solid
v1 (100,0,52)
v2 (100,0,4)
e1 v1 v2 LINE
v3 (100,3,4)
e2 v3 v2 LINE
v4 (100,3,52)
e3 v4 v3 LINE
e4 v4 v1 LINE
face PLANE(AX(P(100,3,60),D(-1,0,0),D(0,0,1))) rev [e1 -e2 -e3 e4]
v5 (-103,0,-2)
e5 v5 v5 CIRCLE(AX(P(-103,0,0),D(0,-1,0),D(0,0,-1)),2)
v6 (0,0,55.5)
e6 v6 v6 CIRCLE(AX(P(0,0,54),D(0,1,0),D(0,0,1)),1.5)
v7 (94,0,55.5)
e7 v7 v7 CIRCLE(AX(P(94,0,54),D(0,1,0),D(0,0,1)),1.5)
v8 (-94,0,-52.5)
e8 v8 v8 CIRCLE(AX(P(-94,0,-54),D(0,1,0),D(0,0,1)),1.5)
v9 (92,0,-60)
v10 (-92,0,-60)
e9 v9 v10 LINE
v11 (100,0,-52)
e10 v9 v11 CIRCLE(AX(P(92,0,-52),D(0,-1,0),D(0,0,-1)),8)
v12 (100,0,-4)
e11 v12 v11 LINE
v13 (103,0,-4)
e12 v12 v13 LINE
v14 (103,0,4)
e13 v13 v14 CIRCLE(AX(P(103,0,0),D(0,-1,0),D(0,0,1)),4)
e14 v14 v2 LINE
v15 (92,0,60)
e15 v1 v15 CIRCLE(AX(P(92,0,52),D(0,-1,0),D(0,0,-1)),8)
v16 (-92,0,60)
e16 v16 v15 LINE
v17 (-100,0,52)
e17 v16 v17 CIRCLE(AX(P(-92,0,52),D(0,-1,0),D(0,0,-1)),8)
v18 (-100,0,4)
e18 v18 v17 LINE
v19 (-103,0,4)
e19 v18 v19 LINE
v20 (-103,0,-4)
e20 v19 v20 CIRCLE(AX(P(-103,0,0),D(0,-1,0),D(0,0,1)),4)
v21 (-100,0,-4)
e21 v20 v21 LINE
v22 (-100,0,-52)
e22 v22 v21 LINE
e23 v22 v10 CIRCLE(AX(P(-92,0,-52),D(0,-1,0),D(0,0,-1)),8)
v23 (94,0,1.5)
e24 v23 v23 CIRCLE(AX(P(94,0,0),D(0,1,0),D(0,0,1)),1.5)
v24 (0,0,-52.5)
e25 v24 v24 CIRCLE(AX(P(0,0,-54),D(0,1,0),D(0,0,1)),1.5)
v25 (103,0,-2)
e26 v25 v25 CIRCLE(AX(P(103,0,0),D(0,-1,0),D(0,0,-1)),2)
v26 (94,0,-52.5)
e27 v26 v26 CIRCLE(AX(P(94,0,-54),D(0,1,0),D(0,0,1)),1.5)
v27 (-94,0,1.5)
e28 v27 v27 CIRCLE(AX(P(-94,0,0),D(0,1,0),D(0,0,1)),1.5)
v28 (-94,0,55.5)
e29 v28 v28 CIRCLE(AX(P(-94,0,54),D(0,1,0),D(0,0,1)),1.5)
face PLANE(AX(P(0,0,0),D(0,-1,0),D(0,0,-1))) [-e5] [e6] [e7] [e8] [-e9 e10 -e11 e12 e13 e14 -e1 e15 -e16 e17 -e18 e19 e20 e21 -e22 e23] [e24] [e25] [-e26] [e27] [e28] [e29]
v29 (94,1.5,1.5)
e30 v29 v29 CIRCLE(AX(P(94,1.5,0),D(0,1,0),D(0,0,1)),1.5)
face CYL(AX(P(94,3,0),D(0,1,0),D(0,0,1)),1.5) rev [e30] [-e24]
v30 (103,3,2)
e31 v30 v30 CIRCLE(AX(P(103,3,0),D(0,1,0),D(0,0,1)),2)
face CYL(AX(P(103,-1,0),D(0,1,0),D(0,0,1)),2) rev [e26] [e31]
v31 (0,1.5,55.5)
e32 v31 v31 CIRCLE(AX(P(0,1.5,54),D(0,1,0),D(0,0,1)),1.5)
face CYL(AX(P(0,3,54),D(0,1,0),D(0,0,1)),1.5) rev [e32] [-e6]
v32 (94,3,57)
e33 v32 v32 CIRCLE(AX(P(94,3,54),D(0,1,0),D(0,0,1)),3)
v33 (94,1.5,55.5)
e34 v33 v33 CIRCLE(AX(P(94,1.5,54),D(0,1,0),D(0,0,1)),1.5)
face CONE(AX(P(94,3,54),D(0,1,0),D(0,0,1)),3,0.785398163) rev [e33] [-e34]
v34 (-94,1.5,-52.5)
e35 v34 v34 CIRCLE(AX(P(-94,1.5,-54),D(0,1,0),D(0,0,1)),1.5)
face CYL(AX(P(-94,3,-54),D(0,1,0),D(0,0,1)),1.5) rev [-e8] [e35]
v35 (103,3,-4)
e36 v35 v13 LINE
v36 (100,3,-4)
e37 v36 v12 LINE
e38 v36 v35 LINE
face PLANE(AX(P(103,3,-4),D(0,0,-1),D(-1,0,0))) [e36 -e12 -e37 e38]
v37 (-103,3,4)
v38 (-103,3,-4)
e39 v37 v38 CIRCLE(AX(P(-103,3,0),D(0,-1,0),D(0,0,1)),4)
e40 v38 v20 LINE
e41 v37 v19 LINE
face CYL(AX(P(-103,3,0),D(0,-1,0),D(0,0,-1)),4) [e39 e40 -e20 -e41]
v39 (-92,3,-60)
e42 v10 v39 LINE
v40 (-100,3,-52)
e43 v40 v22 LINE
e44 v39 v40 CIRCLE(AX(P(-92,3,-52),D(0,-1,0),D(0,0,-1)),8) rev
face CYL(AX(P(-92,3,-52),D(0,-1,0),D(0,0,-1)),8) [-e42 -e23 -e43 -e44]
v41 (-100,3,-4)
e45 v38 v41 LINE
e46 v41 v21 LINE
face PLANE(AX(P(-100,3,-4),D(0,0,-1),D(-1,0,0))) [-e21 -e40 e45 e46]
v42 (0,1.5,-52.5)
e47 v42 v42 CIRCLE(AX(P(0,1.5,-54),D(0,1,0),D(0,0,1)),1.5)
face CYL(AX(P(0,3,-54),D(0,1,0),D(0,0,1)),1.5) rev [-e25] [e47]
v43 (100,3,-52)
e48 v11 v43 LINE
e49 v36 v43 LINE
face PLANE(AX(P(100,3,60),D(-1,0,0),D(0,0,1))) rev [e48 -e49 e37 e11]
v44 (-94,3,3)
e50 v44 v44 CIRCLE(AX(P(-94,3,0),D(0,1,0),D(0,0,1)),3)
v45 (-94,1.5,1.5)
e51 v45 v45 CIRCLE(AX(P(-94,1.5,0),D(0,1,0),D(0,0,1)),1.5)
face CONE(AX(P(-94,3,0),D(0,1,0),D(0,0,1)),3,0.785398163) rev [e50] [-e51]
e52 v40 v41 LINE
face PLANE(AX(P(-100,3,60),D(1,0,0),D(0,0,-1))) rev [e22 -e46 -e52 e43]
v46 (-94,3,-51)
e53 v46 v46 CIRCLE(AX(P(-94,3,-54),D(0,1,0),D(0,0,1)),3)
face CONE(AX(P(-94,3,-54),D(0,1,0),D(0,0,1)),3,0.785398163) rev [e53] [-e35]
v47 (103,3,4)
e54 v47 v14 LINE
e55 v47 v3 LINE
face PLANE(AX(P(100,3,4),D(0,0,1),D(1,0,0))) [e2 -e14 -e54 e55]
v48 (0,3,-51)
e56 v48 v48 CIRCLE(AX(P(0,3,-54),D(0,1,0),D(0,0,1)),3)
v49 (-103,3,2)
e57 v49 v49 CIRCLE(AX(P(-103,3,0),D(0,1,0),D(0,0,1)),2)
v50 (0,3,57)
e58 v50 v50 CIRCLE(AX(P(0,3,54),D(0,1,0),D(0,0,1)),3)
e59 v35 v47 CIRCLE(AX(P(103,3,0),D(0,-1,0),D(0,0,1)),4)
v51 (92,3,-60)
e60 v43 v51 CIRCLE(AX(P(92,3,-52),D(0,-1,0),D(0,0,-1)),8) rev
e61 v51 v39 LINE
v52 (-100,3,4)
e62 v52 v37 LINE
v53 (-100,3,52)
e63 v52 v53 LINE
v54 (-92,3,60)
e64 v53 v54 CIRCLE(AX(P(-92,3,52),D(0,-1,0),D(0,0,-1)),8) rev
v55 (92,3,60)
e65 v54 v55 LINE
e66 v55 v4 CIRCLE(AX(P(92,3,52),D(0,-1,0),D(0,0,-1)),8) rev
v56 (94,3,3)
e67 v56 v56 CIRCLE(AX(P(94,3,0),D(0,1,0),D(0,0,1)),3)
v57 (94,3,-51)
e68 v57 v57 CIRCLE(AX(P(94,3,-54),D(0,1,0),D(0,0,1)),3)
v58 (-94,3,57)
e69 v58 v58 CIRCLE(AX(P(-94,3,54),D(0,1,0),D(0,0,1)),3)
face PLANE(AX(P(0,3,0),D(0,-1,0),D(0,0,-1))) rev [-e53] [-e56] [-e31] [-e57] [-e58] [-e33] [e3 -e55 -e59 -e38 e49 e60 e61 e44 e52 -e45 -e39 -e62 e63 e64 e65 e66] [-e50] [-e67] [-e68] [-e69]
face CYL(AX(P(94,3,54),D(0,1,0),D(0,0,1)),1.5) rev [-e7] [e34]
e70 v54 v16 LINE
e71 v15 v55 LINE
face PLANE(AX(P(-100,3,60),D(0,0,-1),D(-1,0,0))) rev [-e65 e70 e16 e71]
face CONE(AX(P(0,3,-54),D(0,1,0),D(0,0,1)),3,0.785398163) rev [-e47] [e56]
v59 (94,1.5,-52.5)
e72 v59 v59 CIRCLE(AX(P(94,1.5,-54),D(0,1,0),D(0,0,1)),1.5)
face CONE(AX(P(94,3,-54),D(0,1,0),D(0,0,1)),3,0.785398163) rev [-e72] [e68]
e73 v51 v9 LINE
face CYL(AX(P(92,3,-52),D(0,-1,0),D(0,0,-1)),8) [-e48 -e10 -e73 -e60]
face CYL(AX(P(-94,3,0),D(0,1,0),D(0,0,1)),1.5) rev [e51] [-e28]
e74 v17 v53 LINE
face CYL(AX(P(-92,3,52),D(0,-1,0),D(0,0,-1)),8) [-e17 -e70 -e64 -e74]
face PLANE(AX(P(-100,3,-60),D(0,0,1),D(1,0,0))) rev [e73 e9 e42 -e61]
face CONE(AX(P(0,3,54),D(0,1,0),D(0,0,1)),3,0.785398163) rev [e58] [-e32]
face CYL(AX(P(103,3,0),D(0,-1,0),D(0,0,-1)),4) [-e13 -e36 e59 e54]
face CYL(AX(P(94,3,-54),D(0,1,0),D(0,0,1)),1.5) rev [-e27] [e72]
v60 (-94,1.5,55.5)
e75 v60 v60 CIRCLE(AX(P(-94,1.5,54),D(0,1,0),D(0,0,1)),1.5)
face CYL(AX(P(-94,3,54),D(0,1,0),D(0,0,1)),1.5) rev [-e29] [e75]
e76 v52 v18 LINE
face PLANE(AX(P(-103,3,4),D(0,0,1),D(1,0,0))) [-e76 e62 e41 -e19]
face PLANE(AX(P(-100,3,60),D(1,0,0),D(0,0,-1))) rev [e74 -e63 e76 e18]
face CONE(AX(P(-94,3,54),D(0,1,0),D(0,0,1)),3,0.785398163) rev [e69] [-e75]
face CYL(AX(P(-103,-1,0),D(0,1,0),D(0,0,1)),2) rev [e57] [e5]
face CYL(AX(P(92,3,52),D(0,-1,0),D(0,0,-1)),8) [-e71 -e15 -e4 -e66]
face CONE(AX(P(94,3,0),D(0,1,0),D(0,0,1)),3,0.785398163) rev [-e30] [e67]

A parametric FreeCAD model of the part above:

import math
import FreeCAD as App
import Part
import Sketcher
Q = App.Units.Quantity


def edges_at(feature, points):
    """Names of the edges that pass closest to the given points."""
    edges = feature.Shape.Edges
    near = lambda p: min(range(len(edges)), key=lambda i: edges[i].distToShape(Part.Vertex(*p))[0])
    return sorted({f"Edge{near(p) + 1}" for p in points})

doc = App.newDocument("Part")
body = doc.addObject("PartDesign::Body", "Body")

# Sketch on XZ plane
sketch1 = doc.addObject("Sketcher::SketchObject", "Sketch")
body.addObject(sketch1)
sketch1.AttachmentSupport = (doc.XZ_Plane, [""])
sketch1.MapMode = "FlatFace"
sketch1.addGeometry([
    Part.LineSegment(App.Vector(-100, -60, 0), App.Vector(-100, 60, 0)),
    Part.LineSegment(App.Vector(-100, 60, 0), App.Vector(100, 60, 0)),
    Part.LineSegment(App.Vector(100, 60, 0), App.Vector(100, -60, 0)),
    Part.LineSegment(App.Vector(100, -60, 0), App.Vector(-100, -60, 0)),
], False)
sketch1.addConstraint([
    Sketcher.Constraint("Coincident", 0, 2, 1, 1),
    Sketcher.Constraint("Coincident", 1, 2, 2, 1),
    Sketcher.Constraint("Coincident", 2, 2, 3, 1),
    Sketcher.Constraint("Coincident", 3, 2, 0, 1),
    Sketcher.Constraint("Vertical", 0),
    Sketcher.Constraint("Horizontal", 1),
    Sketcher.Constraint("Vertical", 2),
    Sketcher.Constraint("Horizontal", 3),
    Sketcher.Constraint("Symmetric", 0, 2, 2, 2, -1, 1),
    Sketcher.Constraint("DistanceX", 1, 1, 1, 2, Q("200 mm")),
    Sketcher.Constraint("DistanceY", 0, 1, 0, 2, Q("120 mm")),
])
pad1 = doc.addObject("PartDesign::Pad", "Pad")
body.addObject(pad1)
pad1.Profile = sketch1
pad1.Length = 3
pad1.Reversed = True

# Sketch on XZ plane
sketch2 = doc.addObject("Sketcher::SketchObject", "Sketch001")
body.addObject(sketch2)
sketch2.AttachmentSupport = (doc.XZ_Plane, [""])
sketch2.MapMode = "FlatFace"
sketch2.AttachmentOffset = App.Placement(App.Vector(0, 0, -3), App.Rotation())
sketch2.addGeometry([
    Part.Circle(App.Vector(-94, -54, 0), App.Vector(0, 0, 1), 1.5),  # 0
    Part.Circle(App.Vector(0, -54, 0), App.Vector(0, 0, 1), 1.5),  # 1
    Part.Circle(App.Vector(94, -54, 0), App.Vector(0, 0, 1), 1.5),  # 2
    Part.Circle(App.Vector(94, 0, 0), App.Vector(0, 0, 1), 1.5),  # 3
    Part.Circle(App.Vector(94, 54, 0), App.Vector(0, 0, 1), 1.5),  # 4
    Part.Circle(App.Vector(0, 54, 0), App.Vector(0, 0, 1), 1.5),  # 5
    Part.Circle(App.Vector(-94, 54, 0), App.Vector(0, 0, 1), 1.5),  # 6
    Part.Circle(App.Vector(-94, 0, 0), App.Vector(0, 0, 1), 1.5),  # 7
], False)
sketch2.addConstraint([
    Sketcher.Constraint("Equal", 0, 1),
    Sketcher.Constraint("Equal", 1, 2),
    Sketcher.Constraint("Equal", 2, 3),
    Sketcher.Constraint("Equal", 3, 4),
    Sketcher.Constraint("Equal", 4, 5),
    Sketcher.Constraint("Equal", 5, 6),
    Sketcher.Constraint("Equal", 6, 7),
    Sketcher.Constraint("Symmetric", 0, 3, 4, 3, -1, 1),
    Sketcher.Constraint("Symmetric", 1, 3, 5, 3, -1, 1),
    Sketcher.Constraint("Symmetric", 2, 3, 6, 3, -1, 1),
    Sketcher.Constraint("Symmetric", 3, 3, 7, 3, -1, 1),
    Sketcher.Constraint("Symmetric", 0, 3, 2, 3, -2),
    Sketcher.Constraint("PointOnObject", 1, 3, -2),
    Sketcher.Constraint("PointOnObject", 3, 3, -1),
    Sketcher.Constraint("Horizontal", 0, 3, 1, 3),
    Sketcher.Constraint("Vertical", 2, 3, 3, 3),
    Sketcher.Constraint("Diameter", 0, Q("3 mm")),
    Sketcher.Constraint("DistanceX", 0, 3, -1, 1, Q("94 mm")),
    Sketcher.Constraint("DistanceY", 0, 3, -1, 1, Q("54 mm")),
])
doc.recompute()
hole = doc.addObject("PartDesign::Hole", "Hole")
body.addObject(hole)
hole.Profile = sketch2
hole.ThreadType = "None"
hole.Diameter = 3
hole.DepthType = "ThroughAll"
hole.HoleCutType = "Countersink"
hole.HoleCutDiameter = 6
hole.HoleCutCountersinkAngle = 90
hole.Reversed = True
doc.recompute()

fillet = doc.addObject("PartDesign::Fillet", "Fillet")
body.addObject(fillet)
fillet.Base = (hole, edges_at(hole, [
    (100, 1.5, 60),
    (-100, 1.5, 60),
    (-100, 1.5, -60),
    (100, 1.5, -60),
]))
fillet.Radius = 8

# Sketch on XZ plane
sketch3 = doc.addObject("Sketcher::SketchObject", "Sketch002")
body.addObject(sketch3)
sketch3.AttachmentSupport = (doc.XZ_Plane, [""])
sketch3.MapMode = "FlatFace"
sketch3.addGeometry([
    Part.LineSegment(App.Vector(103, 4, 0), App.Vector(100, 4, 0)),  # 0
    Part.LineSegment(App.Vector(100, 4, 0), App.Vector(100, -4, 0)),  # 1
    Part.LineSegment(App.Vector(100, -4, 0), App.Vector(103, -4, 0)),  # 2
    Part.ArcOfCircle(Part.Circle(App.Vector(103, 0, 0), App.Vector(0, 0, 1), 4), math.radians(-90), math.radians(90)),  # 3
    Part.LineSegment(App.Vector(-103, -4, 0), App.Vector(-100, -4, 0)),  # 4
    Part.LineSegment(App.Vector(-100, -4, 0), App.Vector(-100, 4, 0)),  # 5
    Part.LineSegment(App.Vector(-100, 4, 0), App.Vector(-103, 4, 0)),  # 6
    Part.ArcOfCircle(Part.Circle(App.Vector(-103, 0, 0), App.Vector(0, 0, 1), 4), math.radians(90), math.radians(270)),  # 7
], False)
sketch3.addConstraint([
    Sketcher.Constraint("Coincident", 0, 2, 1, 1),
    Sketcher.Constraint("Coincident", 1, 2, 2, 1),
    Sketcher.Constraint("Tangent", 2, 2, 3, 1),
    Sketcher.Constraint("Tangent", 3, 2, 0, 1),
    Sketcher.Constraint("Coincident", 4, 2, 5, 1),
    Sketcher.Constraint("Coincident", 5, 2, 6, 1),
    Sketcher.Constraint("Tangent", 6, 2, 7, 1),
    Sketcher.Constraint("Tangent", 7, 2, 4, 1),
    Sketcher.Constraint("Horizontal", 0),
    Sketcher.Constraint("Vertical", 1),
    Sketcher.Constraint("Horizontal", 2),
    Sketcher.Constraint("Horizontal", 4),
    Sketcher.Constraint("Vertical", 5),
    Sketcher.Constraint("Horizontal", 6),
    Sketcher.Constraint("Equal", 3, 7),
    Sketcher.Constraint("Symmetric", 3, 3, 7, 3, -1, 1),
    Sketcher.Constraint("Symmetric", 1, 2, 4, 2, -2),
    Sketcher.Constraint("Radius", 3, Q("4 mm")),
    Sketcher.Constraint("DistanceX", 0, 2, 0, 1, Q("3 mm")),
    Sketcher.Constraint("DistanceX", -1, 1, 3, 3, Q("103 mm")),
])
pad2 = doc.addObject("PartDesign::Pad", "Pad001")
body.addObject(pad2)
pad2.Profile = sketch3
pad2.Length = 3
pad2.Reversed = True

# Sketch on XZ plane
sketch4 = doc.addObject("Sketcher::SketchObject", "Sketch003")
body.addObject(sketch4)
sketch4.AttachmentSupport = (doc.XZ_Plane, [""])
sketch4.MapMode = "FlatFace"
sketch4.AttachmentOffset = App.Placement(App.Vector(0, 0, -3), App.Rotation())
sketch4.addGeometry([
    Part.Circle(App.Vector(-103, 0, 0), App.Vector(0, 0, 1), 2),
    Part.Circle(App.Vector(103, 0, 0), App.Vector(0, 0, 1), 2),
], False)
sketch4.addConstraint([
    Sketcher.Constraint("Equal", 0, 1),
    Sketcher.Constraint("Symmetric", 0, 3, 1, 3, -1, 1),
    Sketcher.Constraint("PointOnObject", 0, 3, -1),
    Sketcher.Constraint("Diameter", 0, Q("4 mm")),
    Sketcher.Constraint("DistanceX", 0, 3, -1, 1, Q("103 mm")),
])
pocket1 = doc.addObject("PartDesign::Pocket", "Pocket")
body.addObject(pocket1)
pocket1.Profile = sketch4
pocket1.Length = 4
pocket1.Reversed = True

doc.recompute()
